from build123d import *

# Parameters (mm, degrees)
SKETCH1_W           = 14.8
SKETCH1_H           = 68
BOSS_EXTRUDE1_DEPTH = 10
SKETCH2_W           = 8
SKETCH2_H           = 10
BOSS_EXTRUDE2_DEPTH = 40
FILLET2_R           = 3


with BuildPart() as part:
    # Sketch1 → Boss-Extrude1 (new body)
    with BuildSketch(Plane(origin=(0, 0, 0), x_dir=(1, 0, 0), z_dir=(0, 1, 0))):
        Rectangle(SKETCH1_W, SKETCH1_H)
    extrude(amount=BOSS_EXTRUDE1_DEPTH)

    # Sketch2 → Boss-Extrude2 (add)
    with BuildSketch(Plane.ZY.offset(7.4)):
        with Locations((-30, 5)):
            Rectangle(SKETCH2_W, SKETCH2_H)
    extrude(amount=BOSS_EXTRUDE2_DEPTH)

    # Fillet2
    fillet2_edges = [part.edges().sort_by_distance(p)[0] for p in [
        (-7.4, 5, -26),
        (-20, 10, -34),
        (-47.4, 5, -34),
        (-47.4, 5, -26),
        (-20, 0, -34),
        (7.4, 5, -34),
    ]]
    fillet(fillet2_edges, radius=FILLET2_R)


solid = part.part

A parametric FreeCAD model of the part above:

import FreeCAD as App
import Part
import Sketcher

V = App.Vector
Q = App.Units.Quantity


def edges_at(feature, points):
    """Names of the edges that pass closest to the given points."""
    edges = feature.Shape.Edges
    near = lambda p: min(range(len(edges)), key=lambda i: edges[i].distToShape(Part.Vertex(*p))[0])
    return sorted({f"Edge{near(p) + 1}" for p in points})

doc = App.newDocument("Part")
body = doc.addObject("PartDesign::Body", "Body")

sketch1 = body.newObject("Sketcher::SketchObject", "Sketch")
sketch1.AttachmentSupport = (doc.getObject("XZ_Plane"), [""])
sketch1.MapMode = "FlatFace"
sketch1.addGeometry([
    Part.LineSegment(V(-7, -34, 0), V(-7, 34, 0)),
    Part.LineSegment(V(-7, 34, 0), V(7, 34, 0)),
    Part.LineSegment(V(7, 34, 0), V(7, -34, 0)),
    Part.LineSegment(V(7, -34, 0), V(-7, -34, 0)),
], False)
sketch1.addConstraint([
    Sketcher.Constraint("Coincident", 0, 2, 1, 1),
    Sketcher.Constraint("Coincident", 1, 2, 2, 1),
    Sketcher.Constraint("Coincident", 2, 2, 3, 1),
    Sketcher.Constraint("Coincident", 3, 2, 0, 1),
    Sketcher.Constraint("Vertical", 0),
    Sketcher.Constraint("Horizontal", 1),
    Sketcher.Constraint("Vertical", 2),
    Sketcher.Constraint("Horizontal", 3),
    Sketcher.Constraint("Symmetric", 0, 2, 2, 2, -1, 1),
    Sketcher.Constraint("DistanceY", 0, 1, 0, 2, Q("68 mm")),
    Sketcher.Constraint("DistanceX", 1, 1, 1, 2, Q("14.8 mm")),
])
pad1 = body.newObject("PartDesign::Pad", "Pad")
pad1.Profile = sketch1
pad1.Length = 10
pad1.Reversed = True

sketch2 = body.newObject("Sketcher::SketchObject", "Sketch001")
sketch2.AttachmentSupport = (doc.getObject("YZ_Plane"), [""])
sketch2.MapMode = "FlatFace"
sketch2.AttachmentOffset = App.Placement(V(0, 0, -7.4), App.Rotation())
sketch2.addGeometry([
    Part.LineSegment(V(10, -34, 0), V(0, -34, 0)),
    Part.LineSegment(V(0, -34, 0), V(0, -26, 0)),
    Part.LineSegment(V(0, -26, 0), V(10, -26, 0)),
    Part.LineSegment(V(10, -26, 0), V(10, -34, 0)),
], False)
sketch2.addConstraint([
    Sketcher.Constraint("Coincident", 0, 2, 1, 1),
    Sketcher.Constraint("Coincident", 1, 2, 2, 1),
    Sketcher.Constraint("Coincident", 2, 2, 3, 1),
    Sketcher.Constraint("Coincident", 3, 2, 0, 1),
    Sketcher.Constraint("Horizontal", 0),
    Sketcher.Constraint("Vertical", 1),
    Sketcher.Constraint("Horizontal", 2),
    Sketcher.Constraint("Vertical", 3),
    Sketcher.Constraint("PointOnObject", 0, 2, -2),
    Sketcher.Constraint("DistanceX", 0, 2, 0, 1, Q("10 mm")),
    Sketcher.Constraint("DistanceY", 1, 1, 1, 2, Q("8 mm")),
    Sketcher.Constraint("DistanceY", 0, 2, -1, 1, Q("34 mm")),
])
pad2 = body.newObject("PartDesign::Pad", "Pad001")
pad2.Profile = sketch2
pad2.Length = 40
pad2.Reversed = True
doc.recompute()

fillet = body.newObject("PartDesign::Fillet", "Fillet")
fillet.Base = (pad2, edges_at(pad2, [
    (-7.4, 5, -26),
    (-20, 10, -34),
    (-47.4, 5, -34),
    (-47.4, 5, -26),
    (-20, 0, -34),
    (7.4, 5, -34),
]))
fillet.Radius = 3

doc.recompute()
